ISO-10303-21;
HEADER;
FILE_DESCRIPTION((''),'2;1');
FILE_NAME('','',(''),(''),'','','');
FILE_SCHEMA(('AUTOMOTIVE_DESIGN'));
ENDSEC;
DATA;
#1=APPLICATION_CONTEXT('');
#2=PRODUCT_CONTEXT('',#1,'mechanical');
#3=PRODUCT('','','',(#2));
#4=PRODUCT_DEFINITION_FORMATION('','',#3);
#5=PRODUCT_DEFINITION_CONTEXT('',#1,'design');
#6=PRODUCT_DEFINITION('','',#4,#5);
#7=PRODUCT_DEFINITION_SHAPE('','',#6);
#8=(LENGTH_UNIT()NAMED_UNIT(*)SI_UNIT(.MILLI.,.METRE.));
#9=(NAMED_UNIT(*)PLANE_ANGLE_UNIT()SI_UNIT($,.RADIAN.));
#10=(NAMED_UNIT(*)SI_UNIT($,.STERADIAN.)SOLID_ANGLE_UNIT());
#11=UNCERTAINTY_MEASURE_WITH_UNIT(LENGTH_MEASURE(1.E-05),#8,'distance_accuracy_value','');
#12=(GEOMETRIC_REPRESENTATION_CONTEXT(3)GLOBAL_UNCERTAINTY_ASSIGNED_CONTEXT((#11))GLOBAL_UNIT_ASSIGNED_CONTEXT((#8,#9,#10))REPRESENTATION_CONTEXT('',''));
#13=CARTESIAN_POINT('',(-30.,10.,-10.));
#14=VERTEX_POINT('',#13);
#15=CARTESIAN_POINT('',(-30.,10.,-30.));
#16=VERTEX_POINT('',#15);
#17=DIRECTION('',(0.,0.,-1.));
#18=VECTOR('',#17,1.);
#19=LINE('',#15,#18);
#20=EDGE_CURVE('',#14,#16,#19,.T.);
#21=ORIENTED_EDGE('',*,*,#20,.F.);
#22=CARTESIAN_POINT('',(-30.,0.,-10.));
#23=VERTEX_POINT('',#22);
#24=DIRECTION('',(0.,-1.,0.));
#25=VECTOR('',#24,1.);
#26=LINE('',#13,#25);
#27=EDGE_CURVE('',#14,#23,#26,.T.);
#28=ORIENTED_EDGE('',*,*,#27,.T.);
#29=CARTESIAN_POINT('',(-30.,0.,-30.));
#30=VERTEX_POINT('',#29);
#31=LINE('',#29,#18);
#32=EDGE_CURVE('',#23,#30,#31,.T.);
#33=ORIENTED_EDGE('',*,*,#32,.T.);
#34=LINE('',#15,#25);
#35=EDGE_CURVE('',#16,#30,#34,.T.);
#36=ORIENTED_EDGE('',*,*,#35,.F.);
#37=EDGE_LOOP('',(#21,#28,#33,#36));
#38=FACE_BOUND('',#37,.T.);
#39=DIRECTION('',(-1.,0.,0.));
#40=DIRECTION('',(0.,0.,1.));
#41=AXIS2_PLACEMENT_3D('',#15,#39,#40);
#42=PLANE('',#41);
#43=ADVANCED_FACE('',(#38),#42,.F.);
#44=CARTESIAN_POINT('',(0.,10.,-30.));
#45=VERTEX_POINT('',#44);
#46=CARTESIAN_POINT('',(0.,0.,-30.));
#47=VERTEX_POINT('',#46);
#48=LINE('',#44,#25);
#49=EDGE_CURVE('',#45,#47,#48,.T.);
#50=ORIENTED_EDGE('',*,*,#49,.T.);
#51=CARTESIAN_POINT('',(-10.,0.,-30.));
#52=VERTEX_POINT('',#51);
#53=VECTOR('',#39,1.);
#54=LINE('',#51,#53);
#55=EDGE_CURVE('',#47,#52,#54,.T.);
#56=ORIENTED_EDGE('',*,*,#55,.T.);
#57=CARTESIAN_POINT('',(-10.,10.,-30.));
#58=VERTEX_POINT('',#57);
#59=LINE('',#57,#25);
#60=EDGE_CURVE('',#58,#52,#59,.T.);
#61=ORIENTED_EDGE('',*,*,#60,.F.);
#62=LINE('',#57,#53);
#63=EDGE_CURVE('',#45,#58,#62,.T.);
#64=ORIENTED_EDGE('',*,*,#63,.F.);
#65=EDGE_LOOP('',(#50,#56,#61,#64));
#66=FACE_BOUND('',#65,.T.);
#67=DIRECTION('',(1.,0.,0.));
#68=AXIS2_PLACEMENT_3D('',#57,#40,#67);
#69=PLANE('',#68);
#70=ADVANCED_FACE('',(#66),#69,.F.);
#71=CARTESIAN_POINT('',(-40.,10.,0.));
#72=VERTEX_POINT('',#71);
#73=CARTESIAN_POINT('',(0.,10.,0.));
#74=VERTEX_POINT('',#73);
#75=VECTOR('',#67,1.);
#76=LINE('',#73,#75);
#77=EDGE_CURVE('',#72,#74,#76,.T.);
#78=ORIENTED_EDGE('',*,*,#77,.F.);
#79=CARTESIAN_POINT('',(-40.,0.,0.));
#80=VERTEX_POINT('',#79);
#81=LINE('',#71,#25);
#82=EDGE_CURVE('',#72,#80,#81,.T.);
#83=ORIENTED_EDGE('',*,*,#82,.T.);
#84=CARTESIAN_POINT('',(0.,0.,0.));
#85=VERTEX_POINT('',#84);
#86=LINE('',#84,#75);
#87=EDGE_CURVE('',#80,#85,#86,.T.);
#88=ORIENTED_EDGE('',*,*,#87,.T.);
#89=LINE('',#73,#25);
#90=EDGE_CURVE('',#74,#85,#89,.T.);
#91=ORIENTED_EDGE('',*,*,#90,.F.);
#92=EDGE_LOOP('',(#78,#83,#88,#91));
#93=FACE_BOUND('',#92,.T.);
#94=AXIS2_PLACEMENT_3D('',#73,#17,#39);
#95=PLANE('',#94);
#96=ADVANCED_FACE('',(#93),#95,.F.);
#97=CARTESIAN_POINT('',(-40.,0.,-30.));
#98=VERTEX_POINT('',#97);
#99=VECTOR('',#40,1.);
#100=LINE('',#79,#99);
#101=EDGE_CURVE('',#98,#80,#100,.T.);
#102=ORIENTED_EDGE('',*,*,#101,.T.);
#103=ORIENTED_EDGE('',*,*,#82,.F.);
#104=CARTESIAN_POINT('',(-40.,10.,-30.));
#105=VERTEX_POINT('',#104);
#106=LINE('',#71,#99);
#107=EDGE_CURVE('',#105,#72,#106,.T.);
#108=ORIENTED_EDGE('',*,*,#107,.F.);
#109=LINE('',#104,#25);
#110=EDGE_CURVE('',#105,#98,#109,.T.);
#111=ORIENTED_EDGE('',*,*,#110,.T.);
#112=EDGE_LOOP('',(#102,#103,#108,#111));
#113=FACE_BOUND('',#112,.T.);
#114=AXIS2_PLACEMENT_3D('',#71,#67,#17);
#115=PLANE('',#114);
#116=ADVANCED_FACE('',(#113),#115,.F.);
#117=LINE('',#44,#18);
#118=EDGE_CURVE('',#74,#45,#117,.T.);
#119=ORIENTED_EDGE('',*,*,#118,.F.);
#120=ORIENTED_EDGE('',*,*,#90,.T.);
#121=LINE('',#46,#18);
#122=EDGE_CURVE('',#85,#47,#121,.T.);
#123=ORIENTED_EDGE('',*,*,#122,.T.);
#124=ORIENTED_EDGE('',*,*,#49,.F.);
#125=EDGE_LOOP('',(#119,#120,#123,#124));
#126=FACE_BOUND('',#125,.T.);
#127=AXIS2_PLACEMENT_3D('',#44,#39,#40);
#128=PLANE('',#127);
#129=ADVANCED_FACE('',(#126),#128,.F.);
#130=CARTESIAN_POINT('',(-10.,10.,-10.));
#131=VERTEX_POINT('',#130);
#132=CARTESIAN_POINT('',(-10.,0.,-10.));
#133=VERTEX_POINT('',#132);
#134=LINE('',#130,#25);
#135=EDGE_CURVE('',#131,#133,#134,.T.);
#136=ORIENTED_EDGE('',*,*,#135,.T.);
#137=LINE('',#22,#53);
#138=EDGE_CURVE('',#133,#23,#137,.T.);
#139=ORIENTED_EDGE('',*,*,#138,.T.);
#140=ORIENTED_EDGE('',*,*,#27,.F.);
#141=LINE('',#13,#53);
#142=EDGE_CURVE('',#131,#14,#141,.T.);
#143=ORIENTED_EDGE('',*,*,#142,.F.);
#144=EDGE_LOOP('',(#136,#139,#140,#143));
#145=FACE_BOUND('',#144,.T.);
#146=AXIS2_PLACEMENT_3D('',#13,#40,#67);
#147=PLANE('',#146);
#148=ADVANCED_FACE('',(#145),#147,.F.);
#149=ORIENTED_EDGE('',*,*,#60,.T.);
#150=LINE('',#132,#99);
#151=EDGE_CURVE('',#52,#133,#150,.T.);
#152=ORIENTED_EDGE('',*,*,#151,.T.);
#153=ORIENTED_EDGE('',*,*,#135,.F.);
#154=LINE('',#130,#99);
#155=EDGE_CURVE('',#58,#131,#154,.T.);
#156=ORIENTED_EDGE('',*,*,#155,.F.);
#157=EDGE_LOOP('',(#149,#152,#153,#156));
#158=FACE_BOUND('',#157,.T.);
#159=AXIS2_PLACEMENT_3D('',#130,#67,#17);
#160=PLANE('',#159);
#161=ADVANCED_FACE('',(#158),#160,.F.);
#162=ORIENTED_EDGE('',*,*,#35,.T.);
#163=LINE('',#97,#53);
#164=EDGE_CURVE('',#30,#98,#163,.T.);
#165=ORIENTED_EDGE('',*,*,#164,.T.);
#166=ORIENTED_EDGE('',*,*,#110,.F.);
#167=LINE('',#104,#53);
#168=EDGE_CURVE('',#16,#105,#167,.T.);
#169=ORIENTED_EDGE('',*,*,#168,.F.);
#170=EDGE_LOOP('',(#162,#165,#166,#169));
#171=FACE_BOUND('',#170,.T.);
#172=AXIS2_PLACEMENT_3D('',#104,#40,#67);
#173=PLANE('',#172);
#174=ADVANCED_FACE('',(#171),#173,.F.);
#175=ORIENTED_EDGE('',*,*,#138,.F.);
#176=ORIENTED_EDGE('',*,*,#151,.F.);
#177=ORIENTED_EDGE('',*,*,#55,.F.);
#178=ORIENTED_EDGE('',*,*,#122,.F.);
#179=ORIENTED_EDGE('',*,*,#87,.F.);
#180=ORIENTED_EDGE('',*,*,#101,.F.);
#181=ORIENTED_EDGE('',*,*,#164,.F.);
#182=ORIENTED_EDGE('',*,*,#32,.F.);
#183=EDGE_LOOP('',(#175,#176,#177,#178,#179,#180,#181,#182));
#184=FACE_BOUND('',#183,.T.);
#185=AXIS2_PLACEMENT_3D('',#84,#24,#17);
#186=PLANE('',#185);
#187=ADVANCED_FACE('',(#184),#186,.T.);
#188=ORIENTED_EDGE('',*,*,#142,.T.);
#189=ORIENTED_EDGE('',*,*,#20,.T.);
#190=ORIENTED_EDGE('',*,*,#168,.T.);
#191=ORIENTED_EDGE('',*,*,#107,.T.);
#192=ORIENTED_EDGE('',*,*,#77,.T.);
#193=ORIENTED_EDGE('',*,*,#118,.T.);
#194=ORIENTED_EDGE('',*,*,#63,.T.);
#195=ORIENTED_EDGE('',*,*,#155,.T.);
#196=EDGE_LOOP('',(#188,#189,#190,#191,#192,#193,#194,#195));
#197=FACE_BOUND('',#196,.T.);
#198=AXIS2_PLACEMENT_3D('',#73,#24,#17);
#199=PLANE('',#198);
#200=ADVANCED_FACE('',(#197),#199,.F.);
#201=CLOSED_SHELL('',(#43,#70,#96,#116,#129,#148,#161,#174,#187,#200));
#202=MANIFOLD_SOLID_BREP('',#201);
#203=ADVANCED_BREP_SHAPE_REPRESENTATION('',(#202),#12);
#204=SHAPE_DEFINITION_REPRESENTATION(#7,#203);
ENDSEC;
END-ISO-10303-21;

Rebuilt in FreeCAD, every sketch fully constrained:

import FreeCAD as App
import Part
import Sketcher
Q = App.Units.Quantity

doc = App.newDocument("Part")
body = doc.addObject("PartDesign::Body", "Body")

# Sketch on XZ plane
sketch1 = doc.addObject("Sketcher::SketchObject", "Sketch")
body.addObject(sketch1)
sketch1.AttachmentSupport = (doc.XZ_Plane, [""])
sketch1.MapMode = "FlatFace"
sketch1.addGeometry([
    Part.LineSegment(App.Vector(-40, 0, 0), App.Vector(0, 0, 0)),  # 0
    Part.LineSegment(App.Vector(0, 0, 0), App.Vector(0, -30, 0)),  # 1
    Part.LineSegment(App.Vector(0, -30, 0), App.Vector(-10, -30, 0)),  # 2
    Part.LineSegment(App.Vector(-10, -30, 0), App.Vector(-10, -10, 0)),  # 3
    Part.LineSegment(App.Vector(-10, -10, 0), App.Vector(-30, -10, 0)),  # 4
    Part.LineSegment(App.Vector(-30, -10, 0), App.Vector(-30, -30, 0)),  # 5
    Part.LineSegment(App.Vector(-30, -30, 0), App.Vector(-40, -30, 0)),  # 6
    Part.LineSegment(App.Vector(-40, -30, 0), App.Vector(-40, 0, 0)),  # 7
], False)
sketch1.addConstraint([
    Sketcher.Constraint("Coincident", 0, 2, 1, 1),
    Sketcher.Constraint("Coincident", 1, 2, 2, 1),
    Sketcher.Constraint("Coincident", 2, 2, 3, 1),
    Sketcher.Constraint("Coincident", 3, 2, 4, 1),
    Sketcher.Constraint("Coincident", 4, 2, 5, 1),
    Sketcher.Constraint("Coincident", 5, 2, 6, 1),
    Sketcher.Constraint("Coincident", 6, 2, 7, 1),
    Sketcher.Constraint("Coincident", 7, 2, 0, 1),
    Sketcher.Constraint("Horizontal", 0),
    Sketcher.Constraint("Vertical", 1),
    Sketcher.Constraint("Horizontal", 2),
    Sketcher.Constraint("Vertical", 3),
    Sketcher.Constraint("Horizontal", 4),
    Sketcher.Constraint("Vertical", 5),
    Sketcher.Constraint("Horizontal", 6),
    Sketcher.Constraint("Vertical", 7),
    Sketcher.Constraint("Coincident", 0, 2, -1, 1),
    Sketcher.Constraint("Horizontal", 2, 2, 5, 2),
    Sketcher.Constraint("Equal", 2, 6),
    Sketcher.Constraint("Equal", 4, 3),
    Sketcher.Constraint("DistanceX", 0, 1, 0, 2, Q("40 mm")),
    Sketcher.Constraint("DistanceX", 2, 2, 2, 1, Q("10 mm")),
    Sketcher.Constraint("DistanceY", 1, 2, 1, 1, Q("30 mm")),
])
pad1 = doc.addObject("PartDesign::Pad", "Pad")
body.addObject(pad1)
pad1.Profile = sketch1
pad1.Length = 10
pad1.Reversed = True

doc.recompute()
